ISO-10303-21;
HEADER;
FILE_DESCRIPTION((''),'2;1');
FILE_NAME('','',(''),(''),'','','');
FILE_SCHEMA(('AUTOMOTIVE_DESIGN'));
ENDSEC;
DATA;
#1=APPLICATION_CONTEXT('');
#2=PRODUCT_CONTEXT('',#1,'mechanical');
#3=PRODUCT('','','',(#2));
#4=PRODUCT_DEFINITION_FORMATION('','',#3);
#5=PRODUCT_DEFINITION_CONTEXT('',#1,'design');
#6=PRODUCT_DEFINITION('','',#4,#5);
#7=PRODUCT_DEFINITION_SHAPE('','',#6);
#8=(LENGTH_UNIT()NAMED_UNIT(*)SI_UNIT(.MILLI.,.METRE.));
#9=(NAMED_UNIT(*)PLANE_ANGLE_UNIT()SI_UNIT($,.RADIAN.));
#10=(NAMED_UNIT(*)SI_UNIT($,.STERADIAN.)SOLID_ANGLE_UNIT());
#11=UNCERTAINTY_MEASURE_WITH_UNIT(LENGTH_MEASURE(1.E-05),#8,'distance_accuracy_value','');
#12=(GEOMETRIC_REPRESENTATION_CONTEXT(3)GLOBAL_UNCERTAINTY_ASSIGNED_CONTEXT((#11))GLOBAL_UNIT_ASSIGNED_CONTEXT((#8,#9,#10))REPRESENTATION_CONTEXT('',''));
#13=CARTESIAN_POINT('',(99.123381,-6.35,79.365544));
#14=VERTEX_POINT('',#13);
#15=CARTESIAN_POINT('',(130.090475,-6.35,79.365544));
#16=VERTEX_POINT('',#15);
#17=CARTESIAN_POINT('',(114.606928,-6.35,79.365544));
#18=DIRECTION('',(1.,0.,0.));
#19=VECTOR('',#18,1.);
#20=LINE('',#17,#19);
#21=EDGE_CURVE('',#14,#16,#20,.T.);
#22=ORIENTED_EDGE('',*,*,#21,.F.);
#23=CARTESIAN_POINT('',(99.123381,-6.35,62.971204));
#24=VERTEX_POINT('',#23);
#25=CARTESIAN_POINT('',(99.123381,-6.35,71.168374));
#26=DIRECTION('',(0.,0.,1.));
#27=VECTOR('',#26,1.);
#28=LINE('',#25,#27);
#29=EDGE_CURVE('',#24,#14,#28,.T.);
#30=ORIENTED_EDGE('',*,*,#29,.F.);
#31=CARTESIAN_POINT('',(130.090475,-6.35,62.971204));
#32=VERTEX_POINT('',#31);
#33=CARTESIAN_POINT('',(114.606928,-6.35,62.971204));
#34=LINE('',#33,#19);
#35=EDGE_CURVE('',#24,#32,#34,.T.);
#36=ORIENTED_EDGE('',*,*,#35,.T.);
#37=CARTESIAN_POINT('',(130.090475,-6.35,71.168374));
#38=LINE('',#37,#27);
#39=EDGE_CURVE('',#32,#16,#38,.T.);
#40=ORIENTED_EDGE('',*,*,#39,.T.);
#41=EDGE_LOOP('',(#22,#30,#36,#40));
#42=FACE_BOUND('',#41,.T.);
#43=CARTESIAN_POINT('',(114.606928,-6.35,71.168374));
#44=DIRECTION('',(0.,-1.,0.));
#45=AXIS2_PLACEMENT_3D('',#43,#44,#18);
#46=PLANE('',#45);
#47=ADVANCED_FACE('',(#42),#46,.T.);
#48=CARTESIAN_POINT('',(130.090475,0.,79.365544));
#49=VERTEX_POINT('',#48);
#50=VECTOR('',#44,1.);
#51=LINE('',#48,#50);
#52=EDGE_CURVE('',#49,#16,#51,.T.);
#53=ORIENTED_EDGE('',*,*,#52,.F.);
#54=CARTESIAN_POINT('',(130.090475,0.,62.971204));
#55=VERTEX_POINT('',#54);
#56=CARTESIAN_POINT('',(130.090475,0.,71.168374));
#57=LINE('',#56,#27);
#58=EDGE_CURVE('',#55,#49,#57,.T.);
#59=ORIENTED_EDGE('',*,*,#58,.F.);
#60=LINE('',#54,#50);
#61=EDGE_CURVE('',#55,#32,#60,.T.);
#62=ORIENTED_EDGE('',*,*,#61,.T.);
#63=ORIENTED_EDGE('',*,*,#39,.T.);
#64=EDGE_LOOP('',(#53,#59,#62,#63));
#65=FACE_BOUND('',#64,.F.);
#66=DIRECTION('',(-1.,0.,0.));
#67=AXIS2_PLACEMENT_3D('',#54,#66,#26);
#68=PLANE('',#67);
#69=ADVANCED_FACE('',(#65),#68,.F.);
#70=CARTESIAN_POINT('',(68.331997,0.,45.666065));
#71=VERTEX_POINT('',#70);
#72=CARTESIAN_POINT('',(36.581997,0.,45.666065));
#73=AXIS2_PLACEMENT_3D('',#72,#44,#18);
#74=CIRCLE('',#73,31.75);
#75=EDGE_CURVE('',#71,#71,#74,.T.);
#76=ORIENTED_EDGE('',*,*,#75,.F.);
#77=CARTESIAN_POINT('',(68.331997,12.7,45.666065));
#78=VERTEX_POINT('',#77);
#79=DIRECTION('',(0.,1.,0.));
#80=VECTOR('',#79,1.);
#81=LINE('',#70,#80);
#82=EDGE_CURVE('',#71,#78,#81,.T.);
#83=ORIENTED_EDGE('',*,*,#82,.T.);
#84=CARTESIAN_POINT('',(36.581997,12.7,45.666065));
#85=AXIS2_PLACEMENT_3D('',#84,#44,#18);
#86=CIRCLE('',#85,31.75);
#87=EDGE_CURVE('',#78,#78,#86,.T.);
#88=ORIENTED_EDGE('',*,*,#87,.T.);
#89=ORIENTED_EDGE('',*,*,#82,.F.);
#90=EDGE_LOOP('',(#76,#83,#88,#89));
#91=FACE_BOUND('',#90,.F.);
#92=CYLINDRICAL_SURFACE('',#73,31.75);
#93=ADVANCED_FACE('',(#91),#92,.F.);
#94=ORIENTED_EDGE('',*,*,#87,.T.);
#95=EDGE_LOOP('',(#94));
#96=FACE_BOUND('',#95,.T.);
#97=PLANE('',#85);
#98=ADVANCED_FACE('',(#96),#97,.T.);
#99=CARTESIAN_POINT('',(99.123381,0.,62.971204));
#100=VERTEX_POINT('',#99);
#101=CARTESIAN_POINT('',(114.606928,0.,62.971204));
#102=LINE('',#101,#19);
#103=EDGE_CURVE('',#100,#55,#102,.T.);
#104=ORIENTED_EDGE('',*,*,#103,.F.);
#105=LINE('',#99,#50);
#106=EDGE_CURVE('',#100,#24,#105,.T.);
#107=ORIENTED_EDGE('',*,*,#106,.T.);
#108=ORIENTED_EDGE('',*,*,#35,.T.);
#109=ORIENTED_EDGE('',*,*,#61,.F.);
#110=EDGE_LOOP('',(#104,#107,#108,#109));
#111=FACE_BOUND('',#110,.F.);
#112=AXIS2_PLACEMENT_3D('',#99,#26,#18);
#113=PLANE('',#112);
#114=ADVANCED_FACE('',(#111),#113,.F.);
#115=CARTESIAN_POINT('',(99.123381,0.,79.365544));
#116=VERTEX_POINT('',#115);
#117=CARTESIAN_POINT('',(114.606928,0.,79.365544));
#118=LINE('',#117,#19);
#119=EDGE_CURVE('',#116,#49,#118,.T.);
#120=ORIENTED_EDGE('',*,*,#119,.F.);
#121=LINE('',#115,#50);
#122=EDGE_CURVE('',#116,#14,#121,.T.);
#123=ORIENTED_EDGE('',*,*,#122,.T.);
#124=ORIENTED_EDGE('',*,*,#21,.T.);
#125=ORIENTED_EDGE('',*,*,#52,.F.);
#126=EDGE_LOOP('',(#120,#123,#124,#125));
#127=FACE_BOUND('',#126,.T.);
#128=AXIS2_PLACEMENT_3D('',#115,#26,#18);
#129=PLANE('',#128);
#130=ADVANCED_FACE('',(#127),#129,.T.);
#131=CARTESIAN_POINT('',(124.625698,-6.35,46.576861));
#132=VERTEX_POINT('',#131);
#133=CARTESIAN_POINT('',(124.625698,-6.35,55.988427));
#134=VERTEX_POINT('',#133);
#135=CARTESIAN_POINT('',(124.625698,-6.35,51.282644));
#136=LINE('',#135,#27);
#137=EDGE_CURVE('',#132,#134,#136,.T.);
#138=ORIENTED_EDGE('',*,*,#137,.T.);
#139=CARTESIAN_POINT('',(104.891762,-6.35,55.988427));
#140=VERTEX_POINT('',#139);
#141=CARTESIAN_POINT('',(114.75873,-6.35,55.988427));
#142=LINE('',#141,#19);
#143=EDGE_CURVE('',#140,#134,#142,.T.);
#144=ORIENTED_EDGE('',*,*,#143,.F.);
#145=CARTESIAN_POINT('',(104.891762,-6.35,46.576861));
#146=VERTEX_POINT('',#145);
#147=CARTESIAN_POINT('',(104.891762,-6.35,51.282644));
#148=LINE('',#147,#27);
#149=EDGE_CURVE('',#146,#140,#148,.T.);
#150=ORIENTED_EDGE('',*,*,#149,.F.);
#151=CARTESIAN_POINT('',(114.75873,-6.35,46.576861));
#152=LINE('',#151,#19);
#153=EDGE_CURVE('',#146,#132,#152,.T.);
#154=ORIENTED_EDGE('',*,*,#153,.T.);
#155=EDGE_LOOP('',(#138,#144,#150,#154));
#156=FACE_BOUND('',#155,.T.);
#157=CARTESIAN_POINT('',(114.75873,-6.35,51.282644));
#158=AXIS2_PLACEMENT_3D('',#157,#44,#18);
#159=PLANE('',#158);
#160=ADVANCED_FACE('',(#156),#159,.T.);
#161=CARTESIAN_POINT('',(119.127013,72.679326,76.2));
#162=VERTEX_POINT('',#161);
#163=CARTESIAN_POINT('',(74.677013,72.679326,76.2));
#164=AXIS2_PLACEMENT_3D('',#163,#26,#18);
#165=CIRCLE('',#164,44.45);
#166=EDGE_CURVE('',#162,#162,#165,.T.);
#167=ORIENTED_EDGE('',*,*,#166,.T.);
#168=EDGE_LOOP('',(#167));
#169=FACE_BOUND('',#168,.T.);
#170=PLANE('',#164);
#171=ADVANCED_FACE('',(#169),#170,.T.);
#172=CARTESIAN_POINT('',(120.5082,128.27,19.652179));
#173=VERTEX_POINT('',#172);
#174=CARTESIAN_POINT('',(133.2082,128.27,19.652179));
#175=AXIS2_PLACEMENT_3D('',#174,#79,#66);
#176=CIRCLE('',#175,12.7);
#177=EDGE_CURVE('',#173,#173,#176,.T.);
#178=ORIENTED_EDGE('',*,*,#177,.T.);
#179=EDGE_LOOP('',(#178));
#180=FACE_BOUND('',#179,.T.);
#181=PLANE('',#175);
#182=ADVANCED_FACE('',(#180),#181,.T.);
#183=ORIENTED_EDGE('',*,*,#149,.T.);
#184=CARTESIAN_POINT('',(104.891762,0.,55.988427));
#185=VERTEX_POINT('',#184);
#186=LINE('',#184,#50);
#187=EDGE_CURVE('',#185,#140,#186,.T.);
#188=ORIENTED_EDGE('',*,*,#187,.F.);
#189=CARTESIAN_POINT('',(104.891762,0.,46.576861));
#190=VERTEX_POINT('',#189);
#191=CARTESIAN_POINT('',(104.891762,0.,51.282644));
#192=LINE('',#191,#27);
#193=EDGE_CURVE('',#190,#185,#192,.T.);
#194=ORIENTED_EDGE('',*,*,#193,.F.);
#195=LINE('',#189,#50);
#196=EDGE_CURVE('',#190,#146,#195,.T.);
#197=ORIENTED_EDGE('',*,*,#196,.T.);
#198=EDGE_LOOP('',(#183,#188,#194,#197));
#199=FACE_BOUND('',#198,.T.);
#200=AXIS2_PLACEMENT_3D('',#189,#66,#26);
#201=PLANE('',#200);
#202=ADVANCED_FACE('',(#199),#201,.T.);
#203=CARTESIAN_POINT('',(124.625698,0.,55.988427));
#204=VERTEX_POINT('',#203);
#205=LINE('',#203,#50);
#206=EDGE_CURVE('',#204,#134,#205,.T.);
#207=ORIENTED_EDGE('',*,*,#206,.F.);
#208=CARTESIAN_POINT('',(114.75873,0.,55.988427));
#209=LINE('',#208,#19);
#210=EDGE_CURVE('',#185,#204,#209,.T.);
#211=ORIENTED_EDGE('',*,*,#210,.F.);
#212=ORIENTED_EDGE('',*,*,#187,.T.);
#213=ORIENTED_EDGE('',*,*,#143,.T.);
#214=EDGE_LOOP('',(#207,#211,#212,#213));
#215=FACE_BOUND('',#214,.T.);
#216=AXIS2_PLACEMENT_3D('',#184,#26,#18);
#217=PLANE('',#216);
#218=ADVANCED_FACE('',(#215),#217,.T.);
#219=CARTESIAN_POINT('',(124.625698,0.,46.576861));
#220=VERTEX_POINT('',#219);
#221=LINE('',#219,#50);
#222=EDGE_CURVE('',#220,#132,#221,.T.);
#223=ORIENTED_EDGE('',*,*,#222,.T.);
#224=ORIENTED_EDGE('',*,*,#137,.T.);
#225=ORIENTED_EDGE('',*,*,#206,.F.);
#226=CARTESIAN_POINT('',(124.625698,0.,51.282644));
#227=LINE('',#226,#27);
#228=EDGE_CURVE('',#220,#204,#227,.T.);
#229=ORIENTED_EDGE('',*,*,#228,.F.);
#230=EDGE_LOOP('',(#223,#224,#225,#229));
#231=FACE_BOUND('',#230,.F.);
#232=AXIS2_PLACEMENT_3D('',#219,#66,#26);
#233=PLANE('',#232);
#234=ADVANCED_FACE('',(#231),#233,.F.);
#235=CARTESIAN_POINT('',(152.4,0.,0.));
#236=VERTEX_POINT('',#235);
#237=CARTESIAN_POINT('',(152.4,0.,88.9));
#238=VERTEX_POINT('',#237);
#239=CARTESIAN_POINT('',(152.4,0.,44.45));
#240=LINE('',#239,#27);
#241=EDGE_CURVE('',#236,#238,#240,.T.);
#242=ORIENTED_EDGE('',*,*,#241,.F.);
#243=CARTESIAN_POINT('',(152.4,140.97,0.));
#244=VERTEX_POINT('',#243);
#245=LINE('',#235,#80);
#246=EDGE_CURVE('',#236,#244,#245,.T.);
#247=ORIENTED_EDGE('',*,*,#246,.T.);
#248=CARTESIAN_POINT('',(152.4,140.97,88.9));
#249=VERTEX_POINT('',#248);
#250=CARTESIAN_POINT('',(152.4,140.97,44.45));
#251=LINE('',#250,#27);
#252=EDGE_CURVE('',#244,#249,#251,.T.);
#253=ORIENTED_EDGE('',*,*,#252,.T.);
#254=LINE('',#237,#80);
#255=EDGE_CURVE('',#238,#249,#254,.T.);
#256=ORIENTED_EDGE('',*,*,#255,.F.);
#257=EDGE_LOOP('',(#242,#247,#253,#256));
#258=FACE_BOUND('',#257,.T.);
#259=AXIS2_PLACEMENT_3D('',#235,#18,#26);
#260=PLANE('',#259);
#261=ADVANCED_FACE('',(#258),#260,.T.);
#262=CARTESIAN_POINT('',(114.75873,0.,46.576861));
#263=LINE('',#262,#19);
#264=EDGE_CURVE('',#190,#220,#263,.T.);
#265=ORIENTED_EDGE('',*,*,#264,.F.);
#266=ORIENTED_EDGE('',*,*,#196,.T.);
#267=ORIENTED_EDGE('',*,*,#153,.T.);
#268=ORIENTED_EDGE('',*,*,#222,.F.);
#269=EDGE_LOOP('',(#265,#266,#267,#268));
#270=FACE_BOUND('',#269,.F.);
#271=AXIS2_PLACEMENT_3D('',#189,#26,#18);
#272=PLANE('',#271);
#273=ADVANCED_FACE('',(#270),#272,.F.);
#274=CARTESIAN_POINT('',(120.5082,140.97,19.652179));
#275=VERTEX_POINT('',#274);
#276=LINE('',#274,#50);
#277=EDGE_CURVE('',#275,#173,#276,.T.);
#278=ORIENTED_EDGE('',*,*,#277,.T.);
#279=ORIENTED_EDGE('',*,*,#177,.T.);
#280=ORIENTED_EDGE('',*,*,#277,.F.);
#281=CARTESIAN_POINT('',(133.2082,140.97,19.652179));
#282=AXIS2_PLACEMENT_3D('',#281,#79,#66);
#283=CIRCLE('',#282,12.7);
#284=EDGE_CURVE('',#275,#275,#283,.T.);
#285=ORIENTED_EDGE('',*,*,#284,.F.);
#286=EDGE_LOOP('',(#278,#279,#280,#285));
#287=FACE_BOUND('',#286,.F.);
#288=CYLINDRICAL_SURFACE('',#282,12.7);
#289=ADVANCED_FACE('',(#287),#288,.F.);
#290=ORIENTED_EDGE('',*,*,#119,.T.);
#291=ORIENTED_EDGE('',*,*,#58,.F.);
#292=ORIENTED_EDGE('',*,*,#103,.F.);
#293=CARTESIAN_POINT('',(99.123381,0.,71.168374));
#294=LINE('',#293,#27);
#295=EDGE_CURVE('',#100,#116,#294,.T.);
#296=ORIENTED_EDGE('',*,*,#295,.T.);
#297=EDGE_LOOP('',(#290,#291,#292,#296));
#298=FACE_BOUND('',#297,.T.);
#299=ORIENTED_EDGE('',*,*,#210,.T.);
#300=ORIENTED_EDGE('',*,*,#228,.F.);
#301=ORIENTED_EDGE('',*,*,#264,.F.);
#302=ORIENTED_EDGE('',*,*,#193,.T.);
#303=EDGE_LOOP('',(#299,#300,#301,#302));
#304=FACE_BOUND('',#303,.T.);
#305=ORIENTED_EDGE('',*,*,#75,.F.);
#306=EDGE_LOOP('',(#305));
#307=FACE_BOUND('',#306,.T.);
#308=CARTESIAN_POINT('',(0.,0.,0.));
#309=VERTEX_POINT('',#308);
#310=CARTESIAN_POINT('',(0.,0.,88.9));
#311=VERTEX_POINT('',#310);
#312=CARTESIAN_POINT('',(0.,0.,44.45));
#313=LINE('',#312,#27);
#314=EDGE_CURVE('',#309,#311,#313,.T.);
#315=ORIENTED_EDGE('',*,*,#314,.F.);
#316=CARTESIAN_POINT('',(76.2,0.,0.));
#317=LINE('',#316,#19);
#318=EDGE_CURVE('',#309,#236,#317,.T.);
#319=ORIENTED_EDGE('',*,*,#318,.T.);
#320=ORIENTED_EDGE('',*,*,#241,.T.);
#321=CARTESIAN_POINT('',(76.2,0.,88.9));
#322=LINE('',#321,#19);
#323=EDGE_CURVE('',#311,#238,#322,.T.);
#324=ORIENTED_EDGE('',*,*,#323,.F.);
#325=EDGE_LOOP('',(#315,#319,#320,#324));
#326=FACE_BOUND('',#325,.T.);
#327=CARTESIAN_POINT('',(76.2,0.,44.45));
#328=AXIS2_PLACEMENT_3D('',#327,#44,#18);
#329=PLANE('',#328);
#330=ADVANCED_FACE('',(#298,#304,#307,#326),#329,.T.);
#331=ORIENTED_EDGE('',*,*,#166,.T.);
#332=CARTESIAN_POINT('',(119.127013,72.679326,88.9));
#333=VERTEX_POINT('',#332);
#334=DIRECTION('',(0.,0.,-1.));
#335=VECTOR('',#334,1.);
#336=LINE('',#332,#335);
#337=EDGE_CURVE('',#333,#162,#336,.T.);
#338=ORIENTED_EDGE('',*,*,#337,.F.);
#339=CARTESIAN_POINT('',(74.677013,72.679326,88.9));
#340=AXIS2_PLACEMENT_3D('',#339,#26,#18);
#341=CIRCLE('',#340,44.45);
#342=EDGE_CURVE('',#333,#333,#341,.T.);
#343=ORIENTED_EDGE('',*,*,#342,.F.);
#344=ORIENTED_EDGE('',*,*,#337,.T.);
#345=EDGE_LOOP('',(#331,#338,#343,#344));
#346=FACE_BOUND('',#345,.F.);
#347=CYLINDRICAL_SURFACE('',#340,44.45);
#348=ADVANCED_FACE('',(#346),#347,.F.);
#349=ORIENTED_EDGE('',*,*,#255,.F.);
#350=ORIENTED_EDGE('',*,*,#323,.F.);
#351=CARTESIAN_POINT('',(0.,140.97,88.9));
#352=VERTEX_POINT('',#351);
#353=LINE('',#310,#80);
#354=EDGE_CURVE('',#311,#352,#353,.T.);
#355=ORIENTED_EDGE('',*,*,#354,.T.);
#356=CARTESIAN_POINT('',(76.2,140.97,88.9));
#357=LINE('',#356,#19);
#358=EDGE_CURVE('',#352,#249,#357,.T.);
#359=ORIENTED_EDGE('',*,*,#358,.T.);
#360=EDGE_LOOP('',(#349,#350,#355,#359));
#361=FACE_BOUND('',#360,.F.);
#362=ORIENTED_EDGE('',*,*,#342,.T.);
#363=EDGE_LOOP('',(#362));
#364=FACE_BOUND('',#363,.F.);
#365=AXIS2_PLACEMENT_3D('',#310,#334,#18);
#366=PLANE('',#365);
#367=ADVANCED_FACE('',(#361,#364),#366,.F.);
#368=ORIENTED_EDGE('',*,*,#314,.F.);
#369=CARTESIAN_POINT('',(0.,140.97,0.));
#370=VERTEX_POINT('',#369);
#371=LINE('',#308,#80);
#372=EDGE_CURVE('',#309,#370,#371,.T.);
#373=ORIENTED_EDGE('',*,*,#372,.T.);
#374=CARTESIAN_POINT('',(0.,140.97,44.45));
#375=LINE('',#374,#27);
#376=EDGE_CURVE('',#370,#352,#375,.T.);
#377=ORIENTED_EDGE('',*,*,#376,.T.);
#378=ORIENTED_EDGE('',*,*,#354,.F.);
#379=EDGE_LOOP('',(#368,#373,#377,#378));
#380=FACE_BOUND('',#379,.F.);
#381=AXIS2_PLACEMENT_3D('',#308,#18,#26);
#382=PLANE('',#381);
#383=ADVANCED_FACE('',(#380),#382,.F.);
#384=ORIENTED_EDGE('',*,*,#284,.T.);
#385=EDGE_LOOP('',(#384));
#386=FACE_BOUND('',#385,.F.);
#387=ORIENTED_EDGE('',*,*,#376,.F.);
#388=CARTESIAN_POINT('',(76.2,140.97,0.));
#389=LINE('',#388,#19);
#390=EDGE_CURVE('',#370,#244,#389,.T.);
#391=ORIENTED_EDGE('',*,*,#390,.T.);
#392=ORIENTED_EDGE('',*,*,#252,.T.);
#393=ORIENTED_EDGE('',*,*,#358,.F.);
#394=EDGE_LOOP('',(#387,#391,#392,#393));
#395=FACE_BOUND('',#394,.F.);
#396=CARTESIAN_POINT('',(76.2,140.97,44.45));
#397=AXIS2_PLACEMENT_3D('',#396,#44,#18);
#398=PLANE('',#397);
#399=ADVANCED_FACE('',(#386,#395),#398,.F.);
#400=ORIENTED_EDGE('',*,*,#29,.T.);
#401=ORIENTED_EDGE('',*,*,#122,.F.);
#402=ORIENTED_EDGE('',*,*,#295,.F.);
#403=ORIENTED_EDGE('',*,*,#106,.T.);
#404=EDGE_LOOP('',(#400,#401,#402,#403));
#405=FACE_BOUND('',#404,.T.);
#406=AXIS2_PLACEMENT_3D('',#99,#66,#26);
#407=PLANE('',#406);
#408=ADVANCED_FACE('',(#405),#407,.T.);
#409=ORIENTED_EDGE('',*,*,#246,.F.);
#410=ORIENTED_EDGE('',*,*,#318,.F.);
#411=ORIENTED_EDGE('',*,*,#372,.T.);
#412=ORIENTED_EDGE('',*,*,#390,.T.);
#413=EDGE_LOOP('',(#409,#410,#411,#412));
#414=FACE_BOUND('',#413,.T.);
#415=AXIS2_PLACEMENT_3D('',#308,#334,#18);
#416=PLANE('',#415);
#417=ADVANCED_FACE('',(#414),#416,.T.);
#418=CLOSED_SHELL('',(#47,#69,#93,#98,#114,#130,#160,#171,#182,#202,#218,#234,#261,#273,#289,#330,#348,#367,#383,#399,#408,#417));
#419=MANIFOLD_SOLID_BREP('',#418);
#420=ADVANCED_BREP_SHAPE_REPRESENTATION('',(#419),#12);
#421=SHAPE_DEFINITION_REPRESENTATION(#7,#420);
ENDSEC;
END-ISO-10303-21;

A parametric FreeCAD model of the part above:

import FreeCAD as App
import Part
import Sketcher
from FreeCAD import Vector
Q = App.Units.Quantity


def add_polygon(sketch, points):
    """Adds a closed chain of lines whose ends are joined by coincident constraints."""
    first, n = sketch.GeometryCount, len(points)
    for a, b in zip(points, points[1:] + points[:1]):
        sketch.addGeometry(Part.LineSegment(App.Vector(*a, 0), App.Vector(*b, 0)), False)
    for i in range(n):
        sketch.addConstraint(Sketcher.Constraint("Coincident", first + i, 2, first + (i + 1) % n, 1))

doc = App.newDocument("Part")
body = doc.addObject("PartDesign::Body", "Body")

# Sketch on XZ plane
sketch1 = body.newObject("Sketcher::SketchObject", "Sketch")
sketch1.AttachmentSupport = (doc.getObject("XZ_Plane"), [""])
sketch1.MapMode = "FlatFace"
add_polygon(sketch1, [(0, 88.9), (0, 0), (152.4, 0), (152.4, 88.9)])  # lines 0-3
sketch1.addConstraint(Sketcher.Constraint("Vertical", 0))
sketch1.addConstraint(Sketcher.Constraint("Horizontal", 1))
sketch1.addConstraint(Sketcher.Constraint("Vertical", 2))
sketch1.addConstraint(Sketcher.Constraint("Horizontal", 3))
sketch1.addConstraint(Sketcher.Constraint("Coincident", 0, 2, -1, 1))
sketch1.addConstraint(Sketcher.Constraint("DistanceX", 1, 1, 1, 2, Q("6 in")))
sketch1.addConstraint(Sketcher.Constraint("DistanceY", 0, 2, 0, 1, Q("3.5 in")))
pad1 = body.newObject("PartDesign::Pad", "Pad")
pad1.Profile = sketch1
pad1.Length = Q("5.55 in")
pad1.Reversed = True

# Sketch on XZ plane
sketch2 = body.newObject("Sketcher::SketchObject", "Sketch001")
sketch2.AttachmentSupport = (doc.getObject("XZ_Plane"), [""])
sketch2.MapMode = "FlatFace"
sketch2.AttachmentOffset = App.Placement(Vector(0, 0, -5.55 * 25.4), App.Rotation())
sketch2.addGeometry(Part.Circle(Vector(133.2082, 19.652179, 0), Vector(0, 0, 1), 12.7), False)
sketch2.addConstraint(Sketcher.Constraint("Diameter", 0, Q("1 in")))
sketch2.addConstraint(Sketcher.Constraint("DistanceX", -1, 1, 0, 3, 133.2082))
sketch2.addConstraint(Sketcher.Constraint("DistanceY", -1, 1, 0, 3, 19.652179))
pocket1 = body.newObject("PartDesign::Pocket", "Pocket")
pocket1.Profile = sketch2
pocket1.Length = Q("0.5 in")
pocket1.Reversed = True

# Sketch on XY plane
sketch3 = body.newObject("Sketcher::SketchObject", "Sketch002")
sketch3.AttachmentSupport = (doc.getObject("XY_Plane"), [""])
sketch3.MapMode = "FlatFace"
sketch3.AttachmentOffset = App.Placement(Vector(0, 0, 3.5 * 25.4), App.Rotation())
sketch3.addGeometry(Part.Circle(Vector(74.677013, 72.679326, 0), Vector(0, 0, 1), 44.45), False)
sketch3.addConstraint(Sketcher.Constraint("Diameter", 0, Q("3.5 in")))
sketch3.addConstraint(Sketcher.Constraint("DistanceX", -1, 1, 0, 3, 74.677013))
sketch3.addConstraint(Sketcher.Constraint("DistanceY", -1, 1, 0, 3, 72.679326))
pocket2 = body.newObject("PartDesign::Pocket", "Pocket001")
pocket2.Profile = sketch3
pocket2.Length = Q("0.5 in")

# Sketch on XZ plane
sketch4 = body.newObject("Sketcher::SketchObject", "Sketch003")
sketch4.AttachmentSupport = (doc.getObject("XZ_Plane"), [""])
sketch4.MapMode = "FlatFace"
sketch4.addGeometry(Part.Circle(Vector(36.581997, 45.666065, 0), Vector(0, 0, 1), 31.75), False)
sketch4.addConstraint(Sketcher.Constraint("Diameter", 0, Q("2.5 in")))
sketch4.addConstraint(Sketcher.Constraint("DistanceX", -1, 1, 0, 3, 36.581997))
sketch4.addConstraint(Sketcher.Constraint("DistanceY", -1, 1, 0, 3, 45.666065))
pocket3 = body.newObject("PartDesign::Pocket", "Pocket002")
pocket3.Profile = sketch4
pocket3.Length = Q("0.5 in")

# Sketch on XZ plane
sketch5 = body.newObject("Sketcher::SketchObject", "Sketch004")
sketch5.AttachmentSupport = (doc.getObject("XZ_Plane"), [""])
sketch5.MapMode = "FlatFace"
add_polygon(sketch5, [(99.123381, 79.365544), (99.123381, 62.971204), (130.090475, 62.971204), (130.090475, 79.365544)])  # lines 0-3
add_polygon(sketch5, [(104.891762, 55.988427), (104.891762, 46.576861), (124.625698, 46.576861), (124.625698, 55.988427)])  # lines 4-7
sketch5.addConstraint(Sketcher.Constraint("Vertical", 0))
sketch5.addConstraint(Sketcher.Constraint("Horizontal", 1))
sketch5.addConstraint(Sketcher.Constraint("Vertical", 2))
sketch5.addConstraint(Sketcher.Constraint("Horizontal", 3))
sketch5.addConstraint(Sketcher.Constraint("Vertical", 4))
sketch5.addConstraint(Sketcher.Constraint("Horizontal", 5))
sketch5.addConstraint(Sketcher.Constraint("Vertical", 6))
sketch5.addConstraint(Sketcher.Constraint("Horizontal", 7))
sketch5.addConstraint(Sketcher.Constraint("DistanceY", 0, 2, 0, 1, 16.394339))
sketch5.addConstraint(Sketcher.Constraint("DistanceX", -1, 1, 5, 2, 124.625698))
sketch5.addConstraint(Sketcher.Constraint("DistanceX", 1, 1, 1, 2, 30.967094))
sketch5.addConstraint(Sketcher.Constraint("DistanceX", 5, 1, 5, 2, 19.733936))
sketch5.addConstraint(Sketcher.Constraint("DistanceY", 4, 2, 4, 1, 9.411566))
sketch5.addConstraint(Sketcher.Constraint("DistanceX", -1, 1, 0, 2, 99.123381))
sketch5.addConstraint(Sketcher.Constraint("DistanceY", -1, 1, 4, 2, 46.576861))
sketch5.addConstraint(Sketcher.Constraint("DistanceY", -1, 1, 0, 2, 62.971204))
pad2 = body.newObject("PartDesign::Pad", "Pad001")
pad2.Profile = sketch5
pad2.Length = Q("0.25 in")

doc.recompute()
